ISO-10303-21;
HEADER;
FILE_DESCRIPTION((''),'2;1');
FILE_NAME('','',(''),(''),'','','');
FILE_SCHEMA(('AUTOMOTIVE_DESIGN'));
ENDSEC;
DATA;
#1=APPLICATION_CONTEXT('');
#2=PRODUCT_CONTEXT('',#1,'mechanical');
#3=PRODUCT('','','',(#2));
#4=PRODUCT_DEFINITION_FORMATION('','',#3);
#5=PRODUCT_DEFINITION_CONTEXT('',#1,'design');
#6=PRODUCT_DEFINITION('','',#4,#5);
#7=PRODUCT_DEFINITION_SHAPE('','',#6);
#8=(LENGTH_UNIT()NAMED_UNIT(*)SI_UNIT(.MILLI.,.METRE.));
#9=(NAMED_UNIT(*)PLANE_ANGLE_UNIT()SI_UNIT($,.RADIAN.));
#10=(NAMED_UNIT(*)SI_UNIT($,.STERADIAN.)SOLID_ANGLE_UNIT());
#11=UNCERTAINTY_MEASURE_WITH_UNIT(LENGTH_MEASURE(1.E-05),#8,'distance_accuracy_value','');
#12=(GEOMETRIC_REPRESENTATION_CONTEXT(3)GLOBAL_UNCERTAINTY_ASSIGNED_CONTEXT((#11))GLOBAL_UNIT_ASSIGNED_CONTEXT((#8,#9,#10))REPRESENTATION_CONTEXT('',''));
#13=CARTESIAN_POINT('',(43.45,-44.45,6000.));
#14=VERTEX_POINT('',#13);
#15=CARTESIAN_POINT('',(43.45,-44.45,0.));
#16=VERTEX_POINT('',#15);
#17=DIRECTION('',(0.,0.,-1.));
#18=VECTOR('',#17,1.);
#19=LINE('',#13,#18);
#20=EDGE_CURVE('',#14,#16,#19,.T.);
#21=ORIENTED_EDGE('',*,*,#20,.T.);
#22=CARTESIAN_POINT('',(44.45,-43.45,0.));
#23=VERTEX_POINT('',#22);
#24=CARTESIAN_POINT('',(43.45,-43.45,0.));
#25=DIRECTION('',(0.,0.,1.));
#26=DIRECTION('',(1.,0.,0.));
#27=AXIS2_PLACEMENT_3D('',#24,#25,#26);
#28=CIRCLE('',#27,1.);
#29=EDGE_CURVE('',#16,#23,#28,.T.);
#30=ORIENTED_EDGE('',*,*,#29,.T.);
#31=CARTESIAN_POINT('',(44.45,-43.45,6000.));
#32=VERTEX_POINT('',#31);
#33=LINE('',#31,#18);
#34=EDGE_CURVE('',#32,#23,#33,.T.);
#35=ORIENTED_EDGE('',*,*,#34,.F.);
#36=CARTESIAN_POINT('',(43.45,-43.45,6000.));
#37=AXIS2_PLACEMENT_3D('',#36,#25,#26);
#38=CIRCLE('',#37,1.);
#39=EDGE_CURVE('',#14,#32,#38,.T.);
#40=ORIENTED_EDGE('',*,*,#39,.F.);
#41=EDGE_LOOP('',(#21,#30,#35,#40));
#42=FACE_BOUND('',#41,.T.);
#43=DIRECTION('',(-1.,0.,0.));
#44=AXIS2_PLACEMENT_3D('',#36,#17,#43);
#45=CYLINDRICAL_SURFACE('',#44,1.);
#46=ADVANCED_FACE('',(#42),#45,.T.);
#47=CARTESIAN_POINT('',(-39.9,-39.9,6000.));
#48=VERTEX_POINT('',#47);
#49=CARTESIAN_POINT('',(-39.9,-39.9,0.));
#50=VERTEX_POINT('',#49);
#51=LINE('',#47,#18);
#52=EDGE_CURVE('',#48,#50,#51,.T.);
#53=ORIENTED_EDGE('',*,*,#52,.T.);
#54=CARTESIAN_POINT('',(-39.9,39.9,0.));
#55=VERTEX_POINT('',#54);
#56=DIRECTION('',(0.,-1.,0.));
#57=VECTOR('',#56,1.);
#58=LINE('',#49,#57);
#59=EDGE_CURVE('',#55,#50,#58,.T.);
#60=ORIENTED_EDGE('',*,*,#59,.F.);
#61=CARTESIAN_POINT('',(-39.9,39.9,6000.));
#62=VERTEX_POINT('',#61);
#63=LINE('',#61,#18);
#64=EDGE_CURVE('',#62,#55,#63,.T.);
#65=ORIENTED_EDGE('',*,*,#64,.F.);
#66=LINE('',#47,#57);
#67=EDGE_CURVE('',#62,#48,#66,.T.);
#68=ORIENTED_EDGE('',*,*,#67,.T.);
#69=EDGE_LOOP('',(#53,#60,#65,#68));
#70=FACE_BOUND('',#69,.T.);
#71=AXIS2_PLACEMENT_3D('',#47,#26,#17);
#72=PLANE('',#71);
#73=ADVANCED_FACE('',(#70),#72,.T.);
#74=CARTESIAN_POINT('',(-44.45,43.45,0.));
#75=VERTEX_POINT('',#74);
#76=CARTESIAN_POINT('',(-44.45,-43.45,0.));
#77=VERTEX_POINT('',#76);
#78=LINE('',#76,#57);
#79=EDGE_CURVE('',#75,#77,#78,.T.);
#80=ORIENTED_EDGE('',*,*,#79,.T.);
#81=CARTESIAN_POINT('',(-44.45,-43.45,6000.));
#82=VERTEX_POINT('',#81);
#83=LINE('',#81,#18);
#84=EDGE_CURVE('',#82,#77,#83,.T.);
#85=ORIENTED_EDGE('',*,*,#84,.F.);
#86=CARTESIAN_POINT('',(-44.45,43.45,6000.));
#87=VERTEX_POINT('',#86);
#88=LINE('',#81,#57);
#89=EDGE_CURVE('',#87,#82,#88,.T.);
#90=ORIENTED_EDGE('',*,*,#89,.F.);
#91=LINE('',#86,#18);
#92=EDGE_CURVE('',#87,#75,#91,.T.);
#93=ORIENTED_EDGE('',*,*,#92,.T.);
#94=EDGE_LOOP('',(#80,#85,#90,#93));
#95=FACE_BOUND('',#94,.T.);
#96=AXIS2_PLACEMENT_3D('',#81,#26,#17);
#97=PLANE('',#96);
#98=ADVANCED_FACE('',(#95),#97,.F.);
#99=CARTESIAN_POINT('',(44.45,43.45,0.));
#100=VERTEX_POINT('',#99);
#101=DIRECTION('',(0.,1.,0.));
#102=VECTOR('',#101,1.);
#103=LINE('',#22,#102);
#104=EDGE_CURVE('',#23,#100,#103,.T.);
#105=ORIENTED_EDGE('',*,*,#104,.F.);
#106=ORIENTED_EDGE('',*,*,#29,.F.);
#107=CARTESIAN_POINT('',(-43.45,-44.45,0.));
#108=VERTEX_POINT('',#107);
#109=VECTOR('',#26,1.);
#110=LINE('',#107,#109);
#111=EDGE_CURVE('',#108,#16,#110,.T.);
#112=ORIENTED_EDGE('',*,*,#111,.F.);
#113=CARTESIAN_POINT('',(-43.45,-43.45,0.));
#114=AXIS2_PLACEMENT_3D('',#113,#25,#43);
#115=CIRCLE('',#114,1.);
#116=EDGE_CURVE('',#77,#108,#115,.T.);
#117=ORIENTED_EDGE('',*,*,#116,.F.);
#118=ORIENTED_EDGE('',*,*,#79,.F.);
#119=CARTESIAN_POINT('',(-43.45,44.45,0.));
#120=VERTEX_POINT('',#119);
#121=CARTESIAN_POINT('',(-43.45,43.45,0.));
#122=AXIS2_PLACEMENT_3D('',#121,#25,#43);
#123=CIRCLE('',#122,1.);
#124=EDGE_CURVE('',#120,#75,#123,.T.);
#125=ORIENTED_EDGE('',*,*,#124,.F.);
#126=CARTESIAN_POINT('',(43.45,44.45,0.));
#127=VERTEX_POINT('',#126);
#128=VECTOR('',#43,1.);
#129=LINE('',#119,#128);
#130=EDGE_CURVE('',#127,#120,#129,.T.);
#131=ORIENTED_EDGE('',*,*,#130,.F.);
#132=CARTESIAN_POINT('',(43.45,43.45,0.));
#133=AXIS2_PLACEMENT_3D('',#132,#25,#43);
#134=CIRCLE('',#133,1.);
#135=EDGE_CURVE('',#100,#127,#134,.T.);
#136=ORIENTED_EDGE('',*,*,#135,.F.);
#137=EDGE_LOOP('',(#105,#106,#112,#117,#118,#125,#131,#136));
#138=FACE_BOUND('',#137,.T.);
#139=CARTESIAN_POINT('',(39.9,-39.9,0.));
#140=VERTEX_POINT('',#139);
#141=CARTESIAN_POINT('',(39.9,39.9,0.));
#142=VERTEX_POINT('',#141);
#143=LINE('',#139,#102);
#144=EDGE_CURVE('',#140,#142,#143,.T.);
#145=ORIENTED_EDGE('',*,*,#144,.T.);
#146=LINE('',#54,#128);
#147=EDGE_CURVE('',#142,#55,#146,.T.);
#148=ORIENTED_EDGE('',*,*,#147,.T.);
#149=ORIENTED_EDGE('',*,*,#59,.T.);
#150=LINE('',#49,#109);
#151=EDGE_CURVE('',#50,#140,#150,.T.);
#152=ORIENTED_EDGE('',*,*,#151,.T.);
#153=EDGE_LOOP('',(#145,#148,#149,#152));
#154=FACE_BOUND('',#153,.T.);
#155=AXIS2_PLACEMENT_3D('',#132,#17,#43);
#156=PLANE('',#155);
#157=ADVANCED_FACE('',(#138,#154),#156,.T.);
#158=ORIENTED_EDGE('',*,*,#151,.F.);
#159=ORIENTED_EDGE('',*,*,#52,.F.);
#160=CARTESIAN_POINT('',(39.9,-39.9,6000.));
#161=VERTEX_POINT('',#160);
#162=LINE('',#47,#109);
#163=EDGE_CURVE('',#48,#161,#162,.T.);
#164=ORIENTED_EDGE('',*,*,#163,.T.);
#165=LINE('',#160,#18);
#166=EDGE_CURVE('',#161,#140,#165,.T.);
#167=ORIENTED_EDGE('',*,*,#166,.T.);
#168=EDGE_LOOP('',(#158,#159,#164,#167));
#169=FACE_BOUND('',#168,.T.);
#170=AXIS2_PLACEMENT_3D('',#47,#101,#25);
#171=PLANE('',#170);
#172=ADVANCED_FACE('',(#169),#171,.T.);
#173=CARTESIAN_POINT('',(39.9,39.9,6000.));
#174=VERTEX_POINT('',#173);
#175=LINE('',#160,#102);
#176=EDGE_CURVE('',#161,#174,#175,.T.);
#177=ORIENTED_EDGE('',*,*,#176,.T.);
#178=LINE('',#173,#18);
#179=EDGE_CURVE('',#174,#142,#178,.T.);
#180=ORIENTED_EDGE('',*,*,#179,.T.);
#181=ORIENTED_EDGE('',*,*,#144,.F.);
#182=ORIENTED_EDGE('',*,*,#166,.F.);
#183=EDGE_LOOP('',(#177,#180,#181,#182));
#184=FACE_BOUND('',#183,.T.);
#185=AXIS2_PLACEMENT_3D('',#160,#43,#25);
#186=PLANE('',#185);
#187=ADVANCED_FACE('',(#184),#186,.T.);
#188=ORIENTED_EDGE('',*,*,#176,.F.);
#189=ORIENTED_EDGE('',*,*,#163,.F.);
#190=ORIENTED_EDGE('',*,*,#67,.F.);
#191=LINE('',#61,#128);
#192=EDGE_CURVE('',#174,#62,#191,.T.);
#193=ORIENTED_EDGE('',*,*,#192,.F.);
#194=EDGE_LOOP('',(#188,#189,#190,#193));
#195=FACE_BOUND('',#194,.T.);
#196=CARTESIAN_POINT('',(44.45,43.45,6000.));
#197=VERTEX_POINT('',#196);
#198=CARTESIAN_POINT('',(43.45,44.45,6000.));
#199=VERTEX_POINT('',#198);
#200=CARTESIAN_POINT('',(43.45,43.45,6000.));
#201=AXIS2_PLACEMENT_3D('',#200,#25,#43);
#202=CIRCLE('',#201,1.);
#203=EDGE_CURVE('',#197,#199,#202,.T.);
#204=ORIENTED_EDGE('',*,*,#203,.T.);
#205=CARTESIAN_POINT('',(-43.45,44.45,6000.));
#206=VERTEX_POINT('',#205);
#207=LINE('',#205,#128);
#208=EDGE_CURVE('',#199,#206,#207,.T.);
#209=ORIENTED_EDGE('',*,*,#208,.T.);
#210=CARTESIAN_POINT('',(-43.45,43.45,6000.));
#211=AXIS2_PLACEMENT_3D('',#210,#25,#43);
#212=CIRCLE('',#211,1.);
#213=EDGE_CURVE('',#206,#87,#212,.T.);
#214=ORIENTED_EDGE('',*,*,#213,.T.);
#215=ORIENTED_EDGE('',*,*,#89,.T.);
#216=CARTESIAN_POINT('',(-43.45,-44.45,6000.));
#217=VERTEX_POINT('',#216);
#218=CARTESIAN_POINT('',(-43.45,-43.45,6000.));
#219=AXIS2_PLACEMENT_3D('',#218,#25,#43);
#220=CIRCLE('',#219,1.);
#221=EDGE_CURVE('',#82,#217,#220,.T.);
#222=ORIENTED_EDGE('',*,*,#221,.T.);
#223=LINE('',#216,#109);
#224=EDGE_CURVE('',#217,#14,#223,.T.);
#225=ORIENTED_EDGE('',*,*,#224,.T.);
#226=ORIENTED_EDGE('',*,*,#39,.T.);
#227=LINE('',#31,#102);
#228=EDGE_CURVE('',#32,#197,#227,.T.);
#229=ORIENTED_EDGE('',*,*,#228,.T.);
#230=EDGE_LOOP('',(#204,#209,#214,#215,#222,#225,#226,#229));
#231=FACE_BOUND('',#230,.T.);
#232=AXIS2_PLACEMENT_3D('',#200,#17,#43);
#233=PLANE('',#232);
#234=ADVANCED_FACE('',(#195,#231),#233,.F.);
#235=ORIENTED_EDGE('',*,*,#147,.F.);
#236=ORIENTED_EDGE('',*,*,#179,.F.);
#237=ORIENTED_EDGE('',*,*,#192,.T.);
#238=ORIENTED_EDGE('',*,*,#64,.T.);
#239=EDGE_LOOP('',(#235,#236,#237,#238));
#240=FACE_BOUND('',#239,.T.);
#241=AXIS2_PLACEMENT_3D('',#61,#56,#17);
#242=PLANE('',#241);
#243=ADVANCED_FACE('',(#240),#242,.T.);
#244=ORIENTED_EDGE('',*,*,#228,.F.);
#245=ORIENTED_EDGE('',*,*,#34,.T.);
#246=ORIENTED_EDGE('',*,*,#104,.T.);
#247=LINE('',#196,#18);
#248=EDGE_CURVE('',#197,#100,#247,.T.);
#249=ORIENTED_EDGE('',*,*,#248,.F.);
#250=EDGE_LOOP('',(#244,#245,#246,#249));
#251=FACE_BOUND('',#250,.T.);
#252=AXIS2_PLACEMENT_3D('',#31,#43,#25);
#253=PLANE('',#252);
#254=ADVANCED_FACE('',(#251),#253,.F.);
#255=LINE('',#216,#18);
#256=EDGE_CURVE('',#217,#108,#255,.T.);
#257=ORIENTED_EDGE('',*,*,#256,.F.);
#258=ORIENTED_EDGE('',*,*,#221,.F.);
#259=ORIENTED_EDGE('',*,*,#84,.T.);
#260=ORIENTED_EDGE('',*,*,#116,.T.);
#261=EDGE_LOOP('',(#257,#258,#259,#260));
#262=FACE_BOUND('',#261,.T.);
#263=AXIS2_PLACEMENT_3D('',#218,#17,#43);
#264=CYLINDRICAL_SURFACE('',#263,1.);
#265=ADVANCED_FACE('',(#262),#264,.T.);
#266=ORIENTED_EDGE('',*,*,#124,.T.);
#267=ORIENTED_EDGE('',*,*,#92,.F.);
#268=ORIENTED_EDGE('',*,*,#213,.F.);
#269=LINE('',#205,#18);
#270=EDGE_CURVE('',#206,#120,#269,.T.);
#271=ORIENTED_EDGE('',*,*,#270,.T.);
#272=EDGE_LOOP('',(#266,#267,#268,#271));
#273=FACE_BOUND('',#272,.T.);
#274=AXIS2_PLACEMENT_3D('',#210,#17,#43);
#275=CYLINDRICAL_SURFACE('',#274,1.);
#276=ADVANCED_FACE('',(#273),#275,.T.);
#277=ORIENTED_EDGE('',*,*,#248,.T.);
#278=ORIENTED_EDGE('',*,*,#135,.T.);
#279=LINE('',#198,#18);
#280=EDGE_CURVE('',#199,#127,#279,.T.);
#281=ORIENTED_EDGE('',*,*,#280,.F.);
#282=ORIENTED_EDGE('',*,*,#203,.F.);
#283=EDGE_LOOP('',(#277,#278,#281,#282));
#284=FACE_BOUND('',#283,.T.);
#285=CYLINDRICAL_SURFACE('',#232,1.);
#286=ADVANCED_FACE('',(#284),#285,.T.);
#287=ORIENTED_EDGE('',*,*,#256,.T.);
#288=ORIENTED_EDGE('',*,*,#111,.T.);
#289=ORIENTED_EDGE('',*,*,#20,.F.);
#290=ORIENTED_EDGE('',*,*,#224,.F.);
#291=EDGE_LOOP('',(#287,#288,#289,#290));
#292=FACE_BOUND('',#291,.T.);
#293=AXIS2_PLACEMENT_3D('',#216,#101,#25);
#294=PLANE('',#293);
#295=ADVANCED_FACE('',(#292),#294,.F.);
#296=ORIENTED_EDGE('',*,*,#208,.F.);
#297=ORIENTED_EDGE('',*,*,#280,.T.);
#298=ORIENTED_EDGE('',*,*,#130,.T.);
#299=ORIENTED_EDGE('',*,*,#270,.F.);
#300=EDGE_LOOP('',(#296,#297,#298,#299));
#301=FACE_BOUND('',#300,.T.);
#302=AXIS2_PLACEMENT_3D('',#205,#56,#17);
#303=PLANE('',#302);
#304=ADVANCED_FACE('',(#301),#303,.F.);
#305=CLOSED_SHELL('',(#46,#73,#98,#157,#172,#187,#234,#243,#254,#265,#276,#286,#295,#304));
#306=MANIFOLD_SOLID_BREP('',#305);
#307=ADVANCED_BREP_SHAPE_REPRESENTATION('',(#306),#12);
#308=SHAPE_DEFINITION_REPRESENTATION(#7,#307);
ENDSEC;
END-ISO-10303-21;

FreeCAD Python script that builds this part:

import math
import FreeCAD as App
import Part
import Sketcher
from FreeCAD import Vector

doc = App.newDocument("Part")
params = doc.addObject("Spreadsheet::Sheet", "Params")
for row, (alias, value) in enumerate([
    ("sketch1_radius", "1 mm"),
    ("sketch1_width", "86.9 mm"),
    ("sketch1_width2", "79.8 mm"),
    ("pad1_length", "6000 mm"),
], start=1):
    params.set(f"A{row}", alias)
    params.set(f"B{row}", "=" + value)
    params.setAlias(f"B{row}", alias)

body = doc.addObject("PartDesign::Body", "Body")

sketch1 = body.newObject("Sketcher::SketchObject", "Sketch")
sketch1.AttachmentSupport = (doc.getObject("XY_Plane"), [""])
sketch1.MapMode = "FlatFace"
sketch1.addGeometry([
    Part.LineSegment(Vector(-43.5, -44.5, 0), Vector(43.5, -44.5, 0)),
    Part.ArcOfCircle(Part.Circle(Vector(43.4, -43.4, 0), Vector(0, 0, 1), 1), math.radians(-90), math.radians(0)),
    Part.LineSegment(Vector(44.5, -43.5, 0), Vector(44.5, 43.5, 0)),
    Part.ArcOfCircle(Part.Circle(Vector(43.4, 43.4, 0), Vector(0, 0, 1), 1), math.radians(0), math.radians(90)),
    Part.LineSegment(Vector(43.5, 44.5, 0), Vector(-43.5, 44.5, 0)),
    Part.ArcOfCircle(Part.Circle(Vector(-43.4, 43.4, 0), Vector(0, 0, 1), 1), math.radians(90), math.radians(180)),
    Part.LineSegment(Vector(-44.5, 43.5, 0), Vector(-44.5, -43.5, 0)),
    Part.ArcOfCircle(Part.Circle(Vector(-43.4, -43.4, 0), Vector(0, 0, 1), 1), math.radians(-180), math.radians(-90)),
    Part.LineSegment(Vector(39.9, -39.9, 0), Vector(-39.9, -39.9, 0)),
    Part.LineSegment(Vector(-39.9, -39.9, 0), Vector(-39.9, 39.9, 0)),
    Part.LineSegment(Vector(-39.9, 39.9, 0), Vector(39.9, 39.9, 0)),
    Part.LineSegment(Vector(39.9, 39.9, 0), Vector(39.9, -39.9, 0)),
], False)
sketch1.addConstraint([
    Sketcher.Constraint("Tangent", 0, 2, 1, 1),
    Sketcher.Constraint("Tangent", 1, 2, 2, 1),
    Sketcher.Constraint("Tangent", 2, 2, 3, 1),
    Sketcher.Constraint("Tangent", 3, 2, 4, 1),
    Sketcher.Constraint("Tangent", 4, 2, 5, 1),
    Sketcher.Constraint("Tangent", 5, 2, 6, 1),
    Sketcher.Constraint("Tangent", 6, 2, 7, 1),
    Sketcher.Constraint("Tangent", 7, 2, 0, 1),
    Sketcher.Constraint("Coincident", 8, 2, 9, 1),
    Sketcher.Constraint("Coincident", 9, 2, 10, 1),
    Sketcher.Constraint("Coincident", 10, 2, 11, 1),
    Sketcher.Constraint("Coincident", 11, 2, 8, 1),
    Sketcher.Constraint("Horizontal", 0),
    Sketcher.Constraint("Vertical", 2),
    Sketcher.Constraint("Horizontal", 4),
    Sketcher.Constraint("Vertical", 6),
    Sketcher.Constraint("Horizontal", 8),
    Sketcher.Constraint("Vertical", 9),
    Sketcher.Constraint("Horizontal", 10),
    Sketcher.Constraint("Vertical", 11),
    Sketcher.Constraint("Equal", 1, 3),
    Sketcher.Constraint("Equal", 3, 5),
    Sketcher.Constraint("Equal", 5, 7),
    Sketcher.Constraint("Symmetric", 1, 3, 5, 3, -1, 1),
    Sketcher.Constraint("Symmetric", 8, 2, 10, 2, -1, 1),
    Sketcher.Constraint("Equal", 4, 2),
    Sketcher.Constraint("Equal", 10, 9),
    Sketcher.Constraint("Radius", 1, 1.0),
    Sketcher.Constraint("DistanceX", 0, 1, 0, 2, 86.9),
    Sketcher.Constraint("DistanceX", 8, 2, 8, 1, 79.8),
])
sketch1.setExpression("Constraints[27]", "Params.sketch1_radius")
sketch1.setExpression("Constraints[28]", "Params.sketch1_width")
sketch1.setExpression("Constraints[29]", "Params.sketch1_width2")
pad1 = body.newObject("PartDesign::Pad", "Pad")
pad1.Profile = sketch1
pad1.setExpression("Length", "Params.pad1_length")

doc.recompute()
